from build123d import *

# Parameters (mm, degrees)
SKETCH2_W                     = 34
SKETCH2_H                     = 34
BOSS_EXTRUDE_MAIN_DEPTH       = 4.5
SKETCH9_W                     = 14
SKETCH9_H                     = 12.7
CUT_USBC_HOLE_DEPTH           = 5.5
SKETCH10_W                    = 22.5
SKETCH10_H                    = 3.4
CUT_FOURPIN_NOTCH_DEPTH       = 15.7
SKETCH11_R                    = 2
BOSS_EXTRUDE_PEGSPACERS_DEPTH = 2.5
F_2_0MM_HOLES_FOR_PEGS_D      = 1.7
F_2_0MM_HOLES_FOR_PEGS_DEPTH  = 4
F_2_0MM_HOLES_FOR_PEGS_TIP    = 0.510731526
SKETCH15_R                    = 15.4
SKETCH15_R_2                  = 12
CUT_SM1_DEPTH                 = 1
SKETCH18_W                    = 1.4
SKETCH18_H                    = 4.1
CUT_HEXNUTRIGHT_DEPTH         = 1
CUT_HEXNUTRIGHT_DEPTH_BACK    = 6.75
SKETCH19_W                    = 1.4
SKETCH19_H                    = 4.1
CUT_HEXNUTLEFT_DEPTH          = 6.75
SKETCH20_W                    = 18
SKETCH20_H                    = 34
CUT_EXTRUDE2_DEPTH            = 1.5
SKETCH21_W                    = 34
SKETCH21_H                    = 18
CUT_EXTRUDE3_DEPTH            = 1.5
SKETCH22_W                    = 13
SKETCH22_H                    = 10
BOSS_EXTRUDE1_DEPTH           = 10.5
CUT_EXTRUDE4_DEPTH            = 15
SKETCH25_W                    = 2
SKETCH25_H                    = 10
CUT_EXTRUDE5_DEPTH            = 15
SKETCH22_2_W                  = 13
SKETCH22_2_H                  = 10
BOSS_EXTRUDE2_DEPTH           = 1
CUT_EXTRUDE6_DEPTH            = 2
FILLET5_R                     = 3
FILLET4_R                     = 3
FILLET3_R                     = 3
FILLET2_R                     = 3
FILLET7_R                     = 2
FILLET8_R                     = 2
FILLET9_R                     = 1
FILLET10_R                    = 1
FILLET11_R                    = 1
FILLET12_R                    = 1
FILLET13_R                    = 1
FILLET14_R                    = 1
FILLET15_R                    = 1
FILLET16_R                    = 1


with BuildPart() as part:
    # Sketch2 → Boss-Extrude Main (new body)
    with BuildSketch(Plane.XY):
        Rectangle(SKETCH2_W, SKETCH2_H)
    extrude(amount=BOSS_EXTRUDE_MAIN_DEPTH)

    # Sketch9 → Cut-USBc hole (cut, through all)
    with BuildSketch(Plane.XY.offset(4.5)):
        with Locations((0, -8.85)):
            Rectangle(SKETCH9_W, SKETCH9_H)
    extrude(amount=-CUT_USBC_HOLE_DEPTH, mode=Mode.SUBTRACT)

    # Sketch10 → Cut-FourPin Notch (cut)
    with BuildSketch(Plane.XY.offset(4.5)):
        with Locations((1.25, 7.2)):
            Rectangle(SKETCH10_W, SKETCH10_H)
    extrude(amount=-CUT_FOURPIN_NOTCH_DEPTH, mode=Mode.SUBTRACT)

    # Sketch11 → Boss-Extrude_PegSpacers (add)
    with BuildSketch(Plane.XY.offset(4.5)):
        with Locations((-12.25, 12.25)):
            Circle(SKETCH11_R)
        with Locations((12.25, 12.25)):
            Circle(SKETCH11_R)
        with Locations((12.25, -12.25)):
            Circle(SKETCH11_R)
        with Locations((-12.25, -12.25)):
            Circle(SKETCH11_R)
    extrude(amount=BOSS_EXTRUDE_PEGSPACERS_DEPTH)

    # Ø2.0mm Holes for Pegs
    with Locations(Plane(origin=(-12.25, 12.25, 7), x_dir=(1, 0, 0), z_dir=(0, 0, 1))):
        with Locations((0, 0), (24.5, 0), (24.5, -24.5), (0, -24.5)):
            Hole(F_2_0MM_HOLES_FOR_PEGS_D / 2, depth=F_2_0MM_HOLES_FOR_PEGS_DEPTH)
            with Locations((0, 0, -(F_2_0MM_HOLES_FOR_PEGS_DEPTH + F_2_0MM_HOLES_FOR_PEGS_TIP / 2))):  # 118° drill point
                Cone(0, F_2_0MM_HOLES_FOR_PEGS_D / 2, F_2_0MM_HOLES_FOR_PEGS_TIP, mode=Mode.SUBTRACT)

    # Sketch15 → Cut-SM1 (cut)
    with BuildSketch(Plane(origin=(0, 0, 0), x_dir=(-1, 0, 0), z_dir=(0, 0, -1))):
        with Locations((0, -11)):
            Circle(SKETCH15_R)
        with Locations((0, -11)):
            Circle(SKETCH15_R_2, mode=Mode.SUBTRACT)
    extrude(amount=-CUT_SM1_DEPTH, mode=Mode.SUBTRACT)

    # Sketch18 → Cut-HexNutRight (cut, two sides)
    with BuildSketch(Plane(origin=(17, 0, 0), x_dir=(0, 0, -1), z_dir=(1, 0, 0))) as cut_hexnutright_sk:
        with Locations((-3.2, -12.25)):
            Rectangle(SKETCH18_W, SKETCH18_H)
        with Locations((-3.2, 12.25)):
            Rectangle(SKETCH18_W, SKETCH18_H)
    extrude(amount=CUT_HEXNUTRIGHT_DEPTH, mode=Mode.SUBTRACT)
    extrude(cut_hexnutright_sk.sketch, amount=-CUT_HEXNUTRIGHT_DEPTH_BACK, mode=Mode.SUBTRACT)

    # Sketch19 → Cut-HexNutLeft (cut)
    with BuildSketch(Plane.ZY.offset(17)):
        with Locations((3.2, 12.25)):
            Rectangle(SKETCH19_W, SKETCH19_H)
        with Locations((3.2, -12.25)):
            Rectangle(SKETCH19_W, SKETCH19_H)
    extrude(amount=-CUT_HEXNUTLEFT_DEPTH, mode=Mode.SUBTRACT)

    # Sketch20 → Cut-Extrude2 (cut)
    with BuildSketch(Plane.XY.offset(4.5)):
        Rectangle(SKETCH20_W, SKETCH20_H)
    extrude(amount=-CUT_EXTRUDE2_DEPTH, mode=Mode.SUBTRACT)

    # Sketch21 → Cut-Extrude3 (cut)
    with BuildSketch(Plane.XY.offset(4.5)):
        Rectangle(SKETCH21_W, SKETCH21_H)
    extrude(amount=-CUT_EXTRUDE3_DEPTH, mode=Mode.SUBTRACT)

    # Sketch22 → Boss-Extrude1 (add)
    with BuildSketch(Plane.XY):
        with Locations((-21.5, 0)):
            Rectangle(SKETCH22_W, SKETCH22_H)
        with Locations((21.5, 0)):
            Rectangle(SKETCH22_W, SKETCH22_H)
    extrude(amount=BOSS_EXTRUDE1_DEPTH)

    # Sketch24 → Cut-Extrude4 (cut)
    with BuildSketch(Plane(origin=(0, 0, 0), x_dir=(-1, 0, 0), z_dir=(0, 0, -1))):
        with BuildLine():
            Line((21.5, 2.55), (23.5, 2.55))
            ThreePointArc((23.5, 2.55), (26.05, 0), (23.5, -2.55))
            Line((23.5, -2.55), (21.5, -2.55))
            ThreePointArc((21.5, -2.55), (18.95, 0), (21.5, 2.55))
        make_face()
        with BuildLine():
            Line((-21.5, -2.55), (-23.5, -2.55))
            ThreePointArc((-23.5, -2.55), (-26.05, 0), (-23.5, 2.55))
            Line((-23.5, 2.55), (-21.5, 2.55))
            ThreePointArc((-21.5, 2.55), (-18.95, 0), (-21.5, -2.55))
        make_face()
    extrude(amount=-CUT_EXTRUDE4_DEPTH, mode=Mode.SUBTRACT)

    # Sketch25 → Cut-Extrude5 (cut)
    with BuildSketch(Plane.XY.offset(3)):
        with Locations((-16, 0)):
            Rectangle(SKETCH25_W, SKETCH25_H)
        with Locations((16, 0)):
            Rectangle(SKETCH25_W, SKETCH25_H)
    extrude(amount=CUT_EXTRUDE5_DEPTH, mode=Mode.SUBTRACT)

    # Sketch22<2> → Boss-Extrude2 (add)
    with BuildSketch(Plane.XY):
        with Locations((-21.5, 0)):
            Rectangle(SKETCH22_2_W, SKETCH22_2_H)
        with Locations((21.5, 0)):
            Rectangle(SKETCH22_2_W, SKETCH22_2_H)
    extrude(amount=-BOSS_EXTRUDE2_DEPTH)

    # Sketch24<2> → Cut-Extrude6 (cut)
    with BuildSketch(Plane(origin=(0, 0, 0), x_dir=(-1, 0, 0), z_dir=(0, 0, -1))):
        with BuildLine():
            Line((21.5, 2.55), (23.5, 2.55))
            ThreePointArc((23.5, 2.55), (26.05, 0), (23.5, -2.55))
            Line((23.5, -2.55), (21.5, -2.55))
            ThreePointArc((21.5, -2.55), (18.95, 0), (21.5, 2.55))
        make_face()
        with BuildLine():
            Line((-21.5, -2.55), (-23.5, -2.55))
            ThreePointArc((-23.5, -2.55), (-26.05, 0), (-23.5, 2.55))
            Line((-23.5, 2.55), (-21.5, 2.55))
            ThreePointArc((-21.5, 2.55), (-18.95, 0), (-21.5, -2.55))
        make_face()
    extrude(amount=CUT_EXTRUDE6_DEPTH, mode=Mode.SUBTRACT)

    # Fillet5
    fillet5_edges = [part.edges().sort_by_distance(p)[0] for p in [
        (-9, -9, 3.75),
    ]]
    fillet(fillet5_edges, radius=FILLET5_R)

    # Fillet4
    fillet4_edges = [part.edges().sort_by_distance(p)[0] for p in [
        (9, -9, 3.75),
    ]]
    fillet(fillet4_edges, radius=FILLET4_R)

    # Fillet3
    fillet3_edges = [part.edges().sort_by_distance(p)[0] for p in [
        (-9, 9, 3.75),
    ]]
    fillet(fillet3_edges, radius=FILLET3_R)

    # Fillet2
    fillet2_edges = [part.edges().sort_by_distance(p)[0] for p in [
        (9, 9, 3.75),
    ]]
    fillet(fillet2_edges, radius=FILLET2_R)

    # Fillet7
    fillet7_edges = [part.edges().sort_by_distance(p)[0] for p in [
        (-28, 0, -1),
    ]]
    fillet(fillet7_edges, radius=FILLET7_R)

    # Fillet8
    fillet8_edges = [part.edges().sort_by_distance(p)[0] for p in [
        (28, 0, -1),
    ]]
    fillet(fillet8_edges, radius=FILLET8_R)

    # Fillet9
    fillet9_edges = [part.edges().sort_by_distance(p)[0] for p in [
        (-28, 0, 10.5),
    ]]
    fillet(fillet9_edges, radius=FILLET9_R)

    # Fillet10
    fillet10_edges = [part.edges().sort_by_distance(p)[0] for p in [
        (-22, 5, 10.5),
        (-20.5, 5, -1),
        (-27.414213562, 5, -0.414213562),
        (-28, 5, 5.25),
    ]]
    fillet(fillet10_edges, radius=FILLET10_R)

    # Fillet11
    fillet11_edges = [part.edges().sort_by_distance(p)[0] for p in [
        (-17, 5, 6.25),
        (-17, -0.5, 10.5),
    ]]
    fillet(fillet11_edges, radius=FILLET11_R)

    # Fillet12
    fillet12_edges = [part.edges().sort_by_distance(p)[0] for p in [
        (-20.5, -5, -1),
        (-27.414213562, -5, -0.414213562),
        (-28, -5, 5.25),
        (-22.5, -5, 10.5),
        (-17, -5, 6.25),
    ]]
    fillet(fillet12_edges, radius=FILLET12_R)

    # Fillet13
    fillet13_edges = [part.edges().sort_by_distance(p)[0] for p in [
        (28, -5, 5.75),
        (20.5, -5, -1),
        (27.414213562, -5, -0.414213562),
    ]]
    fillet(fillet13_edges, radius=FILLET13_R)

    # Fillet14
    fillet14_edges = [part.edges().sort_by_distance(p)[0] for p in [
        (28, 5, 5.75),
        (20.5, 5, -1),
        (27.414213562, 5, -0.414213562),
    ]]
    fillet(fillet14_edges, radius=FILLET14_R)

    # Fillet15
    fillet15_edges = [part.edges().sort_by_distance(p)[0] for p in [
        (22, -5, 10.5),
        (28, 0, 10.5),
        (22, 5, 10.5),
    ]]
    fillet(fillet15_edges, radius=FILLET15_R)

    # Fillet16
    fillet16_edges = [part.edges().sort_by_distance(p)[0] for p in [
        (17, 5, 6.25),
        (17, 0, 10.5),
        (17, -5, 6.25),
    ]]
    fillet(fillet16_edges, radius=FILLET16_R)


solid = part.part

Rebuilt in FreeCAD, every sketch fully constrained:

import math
import FreeCAD as App
import Part
import Sketcher

V = App.Vector
Q = App.Units.Quantity


def edges_at(feature, points):
    """Names of the edges that pass closest to the given points."""
    edges = feature.Shape.Edges
    near = lambda p: min(range(len(edges)), key=lambda i: edges[i].distToShape(Part.Vertex(*p))[0])
    return sorted({f"Edge{near(p) + 1}" for p in points})


def add_polygon(sketch, points):
    """Adds a closed chain of lines whose ends are joined by coincident constraints."""
    first, n = sketch.GeometryCount, len(points)
    for a, b in zip(points, points[1:] + points[:1]):
        sketch.addGeometry(Part.LineSegment(App.Vector(*a, 0), App.Vector(*b, 0)), False)
    for i in range(n):
        sketch.addConstraint(Sketcher.Constraint("Coincident", first + i, 2, first + (i + 1) % n, 1))

doc = App.newDocument("Part")
body = doc.addObject("PartDesign::Body", "Body")

# Sketch on XY plane
sketch1 = body.newObject("Sketcher::SketchObject", "Sketch")
sketch1.AttachmentSupport = (doc.getObject("XY_Plane"), [""])
sketch1.MapMode = "FlatFace"
add_polygon(sketch1, [(-17, 17), (-17, -17), (17, -17), (17, 17)])  # lines 0-3
sketch1.addConstraint([
    Sketcher.Constraint("Vertical", 0),
    Sketcher.Constraint("Horizontal", 1),
    Sketcher.Constraint("Vertical", 2),
    Sketcher.Constraint("Horizontal", 3),
    Sketcher.Constraint("Symmetric", 0, 2, 2, 2, -1, 1),
    Sketcher.Constraint("Equal", 3, 0),
    Sketcher.Constraint("DistanceX", 1, 1, 1, 2, Q("34 mm")),
])
pad1 = body.newObject("PartDesign::Pad", "Pad")
pad1.Profile = sketch1
pad1.Length = 4.5

# Sketch on XY plane
sketch2 = body.newObject("Sketcher::SketchObject", "Sketch001")
sketch2.AttachmentSupport = (doc.getObject("XY_Plane"), [""])
sketch2.MapMode = "FlatFace"
sketch2.AttachmentOffset = App.Placement(V(0, 0, 4.5), App.Rotation())
add_polygon(sketch2, [(-7, -2), (-7, -15), (7, -15), (7, -2)])  # lines 0-3
sketch2.addConstraint([
    Sketcher.Constraint("Vertical", 0),
    Sketcher.Constraint("Horizontal", 1),
    Sketcher.Constraint("Vertical", 2),
    Sketcher.Constraint("Horizontal", 3),
    Sketcher.Constraint("DistanceX", 1, 1, 1, 2, Q("14 mm")),
    Sketcher.Constraint("DistanceY", 0, 2, 0, 1, Q("12.7 mm")),
    Sketcher.Constraint("DistanceX", 0, 2, -1, 1, Q("7 mm")),
    Sketcher.Constraint("DistanceY", 0, 2, -1, 1, Q("15.2 mm")),
])
pocket1 = body.newObject("PartDesign::Pocket", "Pocket")
pocket1.Profile = sketch2
pocket1.Type = "ThroughAll"

# Sketch on XY plane
sketch3 = body.newObject("Sketcher::SketchObject", "Sketch002")
sketch3.AttachmentSupport = (doc.getObject("XY_Plane"), [""])
sketch3.MapMode = "FlatFace"
sketch3.AttachmentOffset = App.Placement(V(0, 0, 4.5), App.Rotation())
add_polygon(sketch3, [(-10, 8.9), (-10, 5.5), (12.5, 5.5), (12.5, 8.9)])  # lines 0-3
sketch3.addConstraint([
    Sketcher.Constraint("Vertical", 0),
    Sketcher.Constraint("Horizontal", 1),
    Sketcher.Constraint("Vertical", 2),
    Sketcher.Constraint("Horizontal", 3),
    Sketcher.Constraint("DistanceX", 1, 1, 1, 2, Q("22.5 mm")),
    Sketcher.Constraint("DistanceY", 0, 2, 0, 1, Q("3.4 mm")),
    Sketcher.Constraint("DistanceX", 0, 2, -1, 1, Q("10 mm")),
    Sketcher.Constraint("DistanceY", -1, 1, 0, 2, Q("5.5 mm")),
])
pocket2 = body.newObject("PartDesign::Pocket", "Pocket001")
pocket2.Profile = sketch3
pocket2.Length = 15.7

# Sketch on XY plane
sketch4 = body.newObject("Sketcher::SketchObject", "Sketch003")
sketch4.AttachmentSupport = (doc.getObject("XY_Plane"), [""])
sketch4.MapMode = "FlatFace"
sketch4.AttachmentOffset = App.Placement(V(0, 0, 4.5), App.Rotation())
sketch4.addGeometry([
    Part.Circle(V(-12.2, 12.2, 0), V(0, 0, 1), 2),
    Part.Circle(V(12.2, 12.2, 0), V(0, 0, 1), 2),
    Part.Circle(V(12.2, -12.2, 0), V(0, 0, 1), 2),
    Part.Circle(V(-12.2, -12.2, 0), V(0, 0, 1), 2),
], False)
sketch4.addConstraint([
    Sketcher.Constraint("Equal", 0, 1),
    Sketcher.Constraint("Equal", 1, 2),
    Sketcher.Constraint("Equal", 2, 3),
    Sketcher.Constraint("Symmetric", 0, 3, 2, 3, -1, 1),
    Sketcher.Constraint("Symmetric", 1, 3, 3, 3, -1, 1),
    Sketcher.Constraint("Symmetric", 0, 3, 1, 3, -2),
    Sketcher.Constraint("Diameter", 0, Q("4 mm")),
    Sketcher.Constraint("DistanceX", 0, 3, 1, 3, Q("24.5 mm")),
    Sketcher.Constraint("DistanceY", 2, 3, 1, 3, Q("24.5 mm")),
])
pad2 = body.newObject("PartDesign::Pad", "Pad001")
pad2.Profile = sketch4
pad2.Length = 2.5

# Sketch on XY plane
sketch5 = body.newObject("Sketcher::SketchObject", "Sketch004")
sketch5.AttachmentSupport = (doc.getObject("XY_Plane"), [""])
sketch5.MapMode = "FlatFace"
sketch5.AttachmentOffset = App.Placement(V(0, 0, 7), App.Rotation())
sketch5.addGeometry([
    Part.Circle(V(-12.2, 12.2, 0), V(0, 0, 1), 0.8),
    Part.Circle(V(12.2, 12.2, 0), V(0, 0, 1), 0.8),
    Part.Circle(V(12.2, -12.2, 0), V(0, 0, 1), 0.8),
    Part.Circle(V(-12.2, -12.2, 0), V(0, 0, 1), 0.8),
], False)
sketch5.addConstraint([
    Sketcher.Constraint("Equal", 0, 1),
    Sketcher.Constraint("Equal", 1, 2),
    Sketcher.Constraint("Equal", 2, 3),
    Sketcher.Constraint("Symmetric", 0, 3, 2, 3, -1, 1),
    Sketcher.Constraint("Symmetric", 1, 3, 3, 3, -1, 1),
    Sketcher.Constraint("Symmetric", 0, 3, 1, 3, -2),
    Sketcher.Constraint("Diameter", 0, Q("1.7 mm")),
    Sketcher.Constraint("DistanceX", 0, 3, 1, 3, Q("24.5 mm")),
    Sketcher.Constraint("DistanceY", 2, 3, 1, 3, Q("24.5 mm")),
])
doc.recompute()
hole = body.newObject("PartDesign::Hole", "Hole")
hole.Profile = sketch5
hole.ThreadType = "None"
hole.Diameter = 1.7
hole.DepthType = "Dimension"
hole.Depth = 4
hole.DrillPoint = "Angled"
hole.DrillPointAngle = 118

# Sketch on XY plane
sketch6 = body.newObject("Sketcher::SketchObject", "Sketch005")
sketch6.AttachmentSupport = (doc.getObject("XY_Plane"), [""])
sketch6.MapMode = "FlatFace"
sketch6.addGeometry([
    Part.Circle(V(0, -11, 0), V(0, 0, 1), 15),
    Part.Circle(V(0, -11, 0), V(0, 0, 1), 12),
], False)
sketch6.addConstraint([
    Sketcher.Constraint("Coincident", 1, 3, 0, 3),
    Sketcher.Constraint("PointOnObject", 0, 3, -2),
    Sketcher.Constraint("Diameter", 1, Q("24 mm")),
    Sketcher.Constraint("Diameter", 0, Q("30.8 mm")),
    Sketcher.Constraint("DistanceY", 0, 3, -1, 1, Q("11 mm")),
])
pocket3 = body.newObject("PartDesign::Pocket", "Pocket002")
pocket3.Profile = sketch6
pocket3.Length = 1
pocket3.Reversed = True

# Sketch on YZ plane
sketch7 = body.newObject("Sketcher::SketchObject", "Sketch006")
sketch7.AttachmentSupport = (doc.getObject("YZ_Plane"), [""])
sketch7.MapMode = "FlatFace"
sketch7.AttachmentOffset = App.Placement(V(0, 0, 17), App.Rotation())
add_polygon(sketch7, [(-10.2, 3.9), (-14.3, 3.9), (-14.3, 2.5), (-10.2, 2.5)])  # lines 0-3
add_polygon(sketch7, [(14.3, 3.9), (10.2, 3.9), (10.2, 2.5), (14.3, 2.5)])  # lines 4-7
sketch7.addConstraint([
    Sketcher.Constraint("Horizontal", 0),
    Sketcher.Constraint("Vertical", 1),
    Sketcher.Constraint("Horizontal", 2),
    Sketcher.Constraint("Vertical", 3),
    Sketcher.Constraint("Horizontal", 4),
    Sketcher.Constraint("Vertical", 5),
    Sketcher.Constraint("Horizontal", 6),
    Sketcher.Constraint("Vertical", 7),
    Sketcher.Constraint("Symmetric", 3, 2, 4, 2, -2),
    Sketcher.Constraint("Symmetric", 1, 2, 6, 2, -2),
    Sketcher.Constraint("DistanceX", 0, 2, 0, 1, Q("4.1 mm")),
    Sketcher.Constraint("DistanceY", 1, 2, 1, 1, Q("1.4 mm")),
    Sketcher.Constraint("DistanceX", 0, 2, -1, 1, Q("14.3 mm")),
    Sketcher.Constraint("DistanceY", -1, 1, 0, 2, Q("3.9 mm")),
])
pocket4 = body.newObject("PartDesign::Pocket", "Pocket003")
pocket4.Profile = sketch7
pocket4.Type = "TwoLengths"
pocket4.Length = 1
pocket4.Length2 = 6.75
pocket4.Reversed = True

# Sketch on YZ plane
sketch8 = body.newObject("Sketcher::SketchObject", "Sketch007")
sketch8.AttachmentSupport = (doc.getObject("YZ_Plane"), [""])
sketch8.MapMode = "FlatFace"
sketch8.AttachmentOffset = App.Placement(V(0, 0, -17), App.Rotation())
add_polygon(sketch8, [(14.3, 2.5), (10.2, 2.5), (10.2, 3.9), (14.3, 3.9)])  # lines 0-3
add_polygon(sketch8, [(-10.2, 2.5), (-14.3, 2.5), (-14.3, 3.9), (-10.2, 3.9)])  # lines 4-7
sketch8.addConstraint([
    Sketcher.Constraint("Horizontal", 0),
    Sketcher.Constraint("Vertical", 1),
    Sketcher.Constraint("Horizontal", 2),
    Sketcher.Constraint("Vertical", 3),
    Sketcher.Constraint("Horizontal", 4),
    Sketcher.Constraint("Vertical", 5),
    Sketcher.Constraint("Horizontal", 6),
    Sketcher.Constraint("Vertical", 7),
    Sketcher.Constraint("Symmetric", 3, 2, 4, 2, -2),
    Sketcher.Constraint("Symmetric", 1, 2, 6, 2, -2),
    Sketcher.Constraint("DistanceX", 0, 2, 0, 1, Q("4.1 mm")),
    Sketcher.Constraint("DistanceY", 1, 1, 1, 2, Q("1.4 mm")),
    Sketcher.Constraint("DistanceX", -1, 1, 0, 2, Q("10.2 mm")),
    Sketcher.Constraint("DistanceY", -1, 1, 0, 2, Q("2.5 mm")),
])
pocket5 = body.newObject("PartDesign::Pocket", "Pocket004")
pocket5.Profile = sketch8
pocket5.Length = 6.75
pocket5.Reversed = True

# Sketch on XY plane
sketch9 = body.newObject("Sketcher::SketchObject", "Sketch008")
sketch9.AttachmentSupport = (doc.getObject("XY_Plane"), [""])
sketch9.MapMode = "FlatFace"
sketch9.AttachmentOffset = App.Placement(V(0, 0, 4.5), App.Rotation())
add_polygon(sketch9, [(-9, 17), (-9, -17), (9, -17), (9, 17)])  # lines 0-3
sketch9.addConstraint([
    Sketcher.Constraint("Vertical", 0),
    Sketcher.Constraint("Horizontal", 1),
    Sketcher.Constraint("Vertical", 2),
    Sketcher.Constraint("Horizontal", 3),
    Sketcher.Constraint("Symmetric", 0, 2, 2, 2, -1, 1),
    Sketcher.Constraint("DistanceX", 1, 1, 1, 2, Q("18 mm")),
    Sketcher.Constraint("DistanceY", 0, 2, 0, 1, Q("34 mm")),
])
pocket6 = body.newObject("PartDesign::Pocket", "Pocket005")
pocket6.Profile = sketch9
pocket6.Length = 1.5

# Sketch on XY plane
sketch10 = body.newObject("Sketcher::SketchObject", "Sketch009")
sketch10.AttachmentSupport = (doc.getObject("XY_Plane"), [""])
sketch10.MapMode = "FlatFace"
sketch10.AttachmentOffset = App.Placement(V(0, 0, 4.5), App.Rotation())
add_polygon(sketch10, [(-17, 9), (-17, -9), (17, -9), (17, 9)])  # lines 0-3
sketch10.addConstraint([
    Sketcher.Constraint("Vertical", 0),
    Sketcher.Constraint("Horizontal", 1),
    Sketcher.Constraint("Vertical", 2),
    Sketcher.Constraint("Horizontal", 3),
    Sketcher.Constraint("Symmetric", 0, 2, 2, 2, -1, 1),
    Sketcher.Constraint("DistanceX", 1, 1, 1, 2, Q("34 mm")),
    Sketcher.Constraint("DistanceY", 0, 2, 0, 1, Q("18 mm")),
])
pocket7 = body.newObject("PartDesign::Pocket", "Pocket006")
pocket7.Profile = sketch10
pocket7.Length = 1.5

# Sketch on XY plane
sketch11 = body.newObject("Sketcher::SketchObject", "Sketch010")
sketch11.AttachmentSupport = (doc.getObject("XY_Plane"), [""])
sketch11.MapMode = "FlatFace"
add_polygon(sketch11, [(-28, 5), (-28, -5), (-15, -5), (-15, 5)])  # lines 0-3
add_polygon(sketch11, [(15, 5), (15, -5), (28, -5), (28, 5)])  # lines 4-7
sketch11.addConstraint([
    Sketcher.Constraint("Vertical", 0),
    Sketcher.Constraint("Horizontal", 1),
    Sketcher.Constraint("Vertical", 2),
    Sketcher.Constraint("Horizontal", 3),
    Sketcher.Constraint("Vertical", 4),
    Sketcher.Constraint("Horizontal", 5),
    Sketcher.Constraint("Vertical", 6),
    Sketcher.Constraint("Horizontal", 7),
    Sketcher.Constraint("Symmetric", 2, 2, 4, 2, -1, 1),
    Sketcher.Constraint("Symmetric", 0, 2, 6, 2, -1, 1),
    Sketcher.Constraint("Horizontal", 1, 2, 4, 2),
    Sketcher.Constraint("DistanceX", 1, 1, 1, 2, Q("13 mm")),
    Sketcher.Constraint("DistanceY", 0, 2, 0, 1, Q("10 mm")),
    Sketcher.Constraint("DistanceX", 0, 2, -1, 1, Q("28 mm")),
])
pad3 = body.newObject("PartDesign::Pad", "Pad002")
pad3.Profile = sketch11
pad3.Length = 10.5

# Sketch on XY plane
sketch12 = body.newObject("Sketcher::SketchObject", "Sketch011")
sketch12.AttachmentSupport = (doc.getObject("XY_Plane"), [""])
sketch12.MapMode = "FlatFace"
sketch12.addGeometry([
    Part.LineSegment(V(-23.5, 2.5, 0), V(-21.5, 2.5, 0)),  # 0
    Part.ArcOfCircle(Part.Circle(V(-21.5, 0, 0), V(0, 0, 1), 2.5), math.radians(-90), math.radians(90)),  # 1
    Part.LineSegment(V(-21.5, -2.5, 0), V(-23.5, -2.5, 0)),  # 2
    Part.ArcOfCircle(Part.Circle(V(-23.5, 0, 0), V(0, 0, 1), 2.5), math.radians(90), math.radians(270)),  # 3
    Part.LineSegment(V(23.5, -2.5, 0), V(21.5, -2.5, 0)),  # 4
    Part.ArcOfCircle(Part.Circle(V(21.5, 0, 0), V(0, 0, 1), 2.5), math.radians(90), math.radians(270)),  # 5
    Part.LineSegment(V(21.5, 2.5, 0), V(23.5, 2.5, 0)),  # 6
    Part.ArcOfCircle(Part.Circle(V(23.5, 0, 0), V(0, 0, 1), 2.5), math.radians(-90), math.radians(90)),  # 7
], False)
sketch12.addConstraint([
    Sketcher.Constraint("Tangent", 0, 2, 1, 2),
    Sketcher.Constraint("Tangent", 1, 1, 2, 1),
    Sketcher.Constraint("Tangent", 2, 2, 3, 2),
    Sketcher.Constraint("Tangent", 3, 1, 0, 1),
    Sketcher.Constraint("Tangent", 4, 2, 5, 2),
    Sketcher.Constraint("Tangent", 5, 1, 6, 1),
    Sketcher.Constraint("Tangent", 6, 2, 7, 2),
    Sketcher.Constraint("Tangent", 7, 1, 4, 1),
    Sketcher.Constraint("Horizontal", 0),
    Sketcher.Constraint("Horizontal", 2),
    Sketcher.Constraint("Horizontal", 4),
    Sketcher.Constraint("Horizontal", 6),
    Sketcher.Constraint("Equal", 3, 5),
    Sketcher.Constraint("Symmetric", 1, 3, 5, 3, -1, 1),
    Sketcher.Constraint("Symmetric", 3, 3, 7, 3, -2),
    Sketcher.Constraint("DistanceX", 0, 1, 0, 2, Q("2 mm")),
    Sketcher.Constraint("Radius", 1, Q("2.55 mm")),
    Sketcher.Constraint("DistanceX", 1, 3, 5, 3, Q("43 mm")),
])
pocket8 = body.newObject("PartDesign::Pocket", "Pocket007")
pocket8.Profile = sketch12
pocket8.Length = 15
pocket8.Reversed = True

# Sketch on XY plane
sketch13 = body.newObject("Sketcher::SketchObject", "Sketch012")
sketch13.AttachmentSupport = (doc.getObject("XY_Plane"), [""])
sketch13.MapMode = "FlatFace"
sketch13.AttachmentOffset = App.Placement(V(0, 0, 3), App.Rotation())
add_polygon(sketch13, [(-17, 5), (-17, -5), (-15, -5), (-15, 5)])  # lines 0-3
add_polygon(sketch13, [(15, 5), (15, -5), (17, -5), (17, 5)])  # lines 4-7
sketch13.addConstraint([
    Sketcher.Constraint("Vertical", 0),
    Sketcher.Constraint("Horizontal", 1),
    Sketcher.Constraint("Vertical", 2),
    Sketcher.Constraint("Horizontal", 3),
    Sketcher.Constraint("Vertical", 4),
    Sketcher.Constraint("Horizontal", 5),
    Sketcher.Constraint("Vertical", 6),
    Sketcher.Constraint("Horizontal", 7),
    Sketcher.Constraint("Symmetric", 2, 2, 4, 2, -1, 1),
    Sketcher.Constraint("Symmetric", 0, 2, 6, 2, -1, 1),
    Sketcher.Constraint("Horizontal", 1, 2, 4, 2),
    Sketcher.Constraint("DistanceX", 1, 1, 1, 2, Q("2 mm")),
    Sketcher.Constraint("DistanceY", 0, 2, 0, 1, Q("10 mm")),
    Sketcher.Constraint("DistanceX", 0, 2, -1, 1, Q("17 mm")),
])
pocket9 = body.newObject("PartDesign::Pocket", "Pocket008")
pocket9.Profile = sketch13
pocket9.Length = 15
pocket9.Reversed = True

# Sketch on XY plane
sketch14 = body.newObject("Sketcher::SketchObject", "Sketch013")
sketch14.AttachmentSupport = (doc.getObject("XY_Plane"), [""])
sketch14.MapMode = "FlatFace"
add_polygon(sketch14, [(-28, 5), (-28, -5), (-15, -5), (-15, 5)])  # lines 0-3
add_polygon(sketch14, [(15, 5), (15, -5), (28, -5), (28, 5)])  # lines 4-7
sketch14.addConstraint([
    Sketcher.Constraint("Vertical", 0),
    Sketcher.Constraint("Horizontal", 1),
    Sketcher.Constraint("Vertical", 2),
    Sketcher.Constraint("Horizontal", 3),
    Sketcher.Constraint("Vertical", 4),
    Sketcher.Constraint("Horizontal", 5),
    Sketcher.Constraint("Vertical", 6),
    Sketcher.Constraint("Horizontal", 7),
    Sketcher.Constraint("Symmetric", 2, 2, 4, 2, -1, 1),
    Sketcher.Constraint("Symmetric", 0, 2, 6, 2, -1, 1),
    Sketcher.Constraint("Horizontal", 1, 2, 4, 2),
    Sketcher.Constraint("DistanceX", 1, 1, 1, 2, Q("13 mm")),
    Sketcher.Constraint("DistanceY", 0, 2, 0, 1, Q("10 mm")),
    Sketcher.Constraint("DistanceX", 0, 2, -1, 1, Q("28 mm")),
])
pad4 = body.newObject("PartDesign::Pad", "Pad003")
pad4.Profile = sketch14
pad4.Length = 1
pad4.Reversed = True

# Sketch on XY plane
sketch15 = body.newObject("Sketcher::SketchObject", "Sketch014")
sketch15.AttachmentSupport = (doc.getObject("XY_Plane"), [""])
sketch15.MapMode = "FlatFace"
sketch15.addGeometry([
    Part.LineSegment(V(-23.5, 2.5, 0), V(-21.5, 2.5, 0)),  # 0
    Part.ArcOfCircle(Part.Circle(V(-21.5, 0, 0), V(0, 0, 1), 2.5), math.radians(-90), math.radians(90)),  # 1
    Part.LineSegment(V(-21.5, -2.5, 0), V(-23.5, -2.5, 0)),  # 2
    Part.ArcOfCircle(Part.Circle(V(-23.5, 0, 0), V(0, 0, 1), 2.5), math.radians(90), math.radians(270)),  # 3
    Part.LineSegment(V(23.5, -2.5, 0), V(21.5, -2.5, 0)),  # 4
    Part.ArcOfCircle(Part.Circle(V(21.5, 0, 0), V(0, 0, 1), 2.5), math.radians(90), math.radians(270)),  # 5
    Part.LineSegment(V(21.5, 2.5, 0), V(23.5, 2.5, 0)),  # 6
    Part.ArcOfCircle(Part.Circle(V(23.5, 0, 0), V(0, 0, 1), 2.5), math.radians(-90), math.radians(90)),  # 7
], False)
sketch15.addConstraint([
    Sketcher.Constraint("Tangent", 0, 2, 1, 2),
    Sketcher.Constraint("Tangent", 1, 1, 2, 1),
    Sketcher.Constraint("Tangent", 2, 2, 3, 2),
    Sketcher.Constraint("Tangent", 3, 1, 0, 1),
    Sketcher.Constraint("Tangent", 4, 2, 5, 2),
    Sketcher.Constraint("Tangent", 5, 1, 6, 1),
    Sketcher.Constraint("Tangent", 6, 2, 7, 2),
    Sketcher.Constraint("Tangent", 7, 1, 4, 1),
    Sketcher.Constraint("Horizontal", 0),
    Sketcher.Constraint("Horizontal", 2),
    Sketcher.Constraint("Horizontal", 4),
    Sketcher.Constraint("Horizontal", 6),
    Sketcher.Constraint("Equal", 3, 5),
    Sketcher.Constraint("Symmetric", 1, 3, 5, 3, -1, 1),
    Sketcher.Constraint("Symmetric", 3, 3, 7, 3, -2),
    Sketcher.Constraint("DistanceX", 0, 1, 0, 2, Q("2 mm")),
    Sketcher.Constraint("Radius", 1, Q("2.55 mm")),
    Sketcher.Constraint("DistanceX", 1, 3, 5, 3, Q("43 mm")),
])
pocket10 = body.newObject("PartDesign::Pocket", "Pocket009")
pocket10.Profile = sketch15
pocket10.Length = 2
doc.recompute()

fillet = body.newObject("PartDesign::Fillet", "Fillet")
fillet.Base = (pocket10, edges_at(pocket10, [(-9, -9, 3.75)]))
fillet.Radius = 3
doc.recompute()

fillet2 = body.newObject("PartDesign::Fillet", "Fillet001")
fillet2.Base = (fillet, edges_at(fillet, [(9, -9, 3.75)]))
fillet2.Radius = 3
doc.recompute()

fillet3 = body.newObject("PartDesign::Fillet", "Fillet002")
fillet3.Base = (fillet2, edges_at(fillet2, [(-9, 9, 3.75)]))
fillet3.Radius = 3
doc.recompute()

fillet4 = body.newObject("PartDesign::Fillet", "Fillet003")
fillet4.Base = (fillet3, edges_at(fillet3, [(9, 9, 3.75)]))
fillet4.Radius = 3
doc.recompute()

fillet5 = body.newObject("PartDesign::Fillet", "Fillet004")
fillet5.Base = (fillet4, edges_at(fillet4, [(-28, 0, -1)]))
fillet5.Radius = 2
doc.recompute()

fillet6 = body.newObject("PartDesign::Fillet", "Fillet005")
fillet6.Base = (fillet5, edges_at(fillet5, [(28, 0, -1)]))
fillet6.Radius = 2
doc.recompute()

fillet7 = body.newObject("PartDesign::Fillet", "Fillet006")
fillet7.Base = (fillet6, edges_at(fillet6, [(-28, 0, 10.5)]))
fillet7.Radius = 1
doc.recompute()

fillet8 = body.newObject("PartDesign::Fillet", "Fillet007")
fillet8.Base = (fillet7, edges_at(fillet7, [
    (-22, 5, 10.5),
    (-20.5, 5, -1),
    (-27.414, 5, -0.414),
    (-28, 5, 5.25),
]))
fillet8.Radius = 1
doc.recompute()

fillet9 = body.newObject("PartDesign::Fillet", "Fillet008")
fillet9.Base = (fillet8, edges_at(fillet8, [(-17, 5, 6.25), (-17, -0.5, 10.5)]))
fillet9.Radius = 1
doc.recompute()

fillet10 = body.newObject("PartDesign::Fillet", "Fillet009")
fillet10.Base = (fillet9, edges_at(fillet9, [
    (-20.5, -5, -1),
    (-27.414, -5, -0.414),
    (-28, -5, 5.25),
    (-22.5, -5, 10.5),
    (-17, -5, 6.25),
]))
fillet10.Radius = 1
doc.recompute()

fillet11 = body.newObject("PartDesign::Fillet", "Fillet010")
fillet11.Base = (fillet10, edges_at(fillet10, [(28, -5, 5.75), (20.5, -5, -1), (27.414, -5, -0.414)]))
fillet11.Radius = 1
doc.recompute()

fillet12 = body.newObject("PartDesign::Fillet", "Fillet011")
fillet12.Base = (fillet11, edges_at(fillet11, [(28, 5, 5.75), (20.5, 5, -1), (27.414, 5, -0.414)]))
fillet12.Radius = 1
doc.recompute()

fillet13 = body.newObject("PartDesign::Fillet", "Fillet012")
fillet13.Base = (fillet12, edges_at(fillet12, [(22, -5, 10.5), (28, 0, 10.5), (22, 5, 10.5)]))
fillet13.Radius = 1
doc.recompute()

fillet14 = body.newObject("PartDesign::Fillet", "Fillet013")
fillet14.Base = (fillet13, edges_at(fillet13, [(17, 5, 6.25), (17, 0, 10.5), (17, -5, 6.25)]))
fillet14.Radius = 1

doc.recompute()
